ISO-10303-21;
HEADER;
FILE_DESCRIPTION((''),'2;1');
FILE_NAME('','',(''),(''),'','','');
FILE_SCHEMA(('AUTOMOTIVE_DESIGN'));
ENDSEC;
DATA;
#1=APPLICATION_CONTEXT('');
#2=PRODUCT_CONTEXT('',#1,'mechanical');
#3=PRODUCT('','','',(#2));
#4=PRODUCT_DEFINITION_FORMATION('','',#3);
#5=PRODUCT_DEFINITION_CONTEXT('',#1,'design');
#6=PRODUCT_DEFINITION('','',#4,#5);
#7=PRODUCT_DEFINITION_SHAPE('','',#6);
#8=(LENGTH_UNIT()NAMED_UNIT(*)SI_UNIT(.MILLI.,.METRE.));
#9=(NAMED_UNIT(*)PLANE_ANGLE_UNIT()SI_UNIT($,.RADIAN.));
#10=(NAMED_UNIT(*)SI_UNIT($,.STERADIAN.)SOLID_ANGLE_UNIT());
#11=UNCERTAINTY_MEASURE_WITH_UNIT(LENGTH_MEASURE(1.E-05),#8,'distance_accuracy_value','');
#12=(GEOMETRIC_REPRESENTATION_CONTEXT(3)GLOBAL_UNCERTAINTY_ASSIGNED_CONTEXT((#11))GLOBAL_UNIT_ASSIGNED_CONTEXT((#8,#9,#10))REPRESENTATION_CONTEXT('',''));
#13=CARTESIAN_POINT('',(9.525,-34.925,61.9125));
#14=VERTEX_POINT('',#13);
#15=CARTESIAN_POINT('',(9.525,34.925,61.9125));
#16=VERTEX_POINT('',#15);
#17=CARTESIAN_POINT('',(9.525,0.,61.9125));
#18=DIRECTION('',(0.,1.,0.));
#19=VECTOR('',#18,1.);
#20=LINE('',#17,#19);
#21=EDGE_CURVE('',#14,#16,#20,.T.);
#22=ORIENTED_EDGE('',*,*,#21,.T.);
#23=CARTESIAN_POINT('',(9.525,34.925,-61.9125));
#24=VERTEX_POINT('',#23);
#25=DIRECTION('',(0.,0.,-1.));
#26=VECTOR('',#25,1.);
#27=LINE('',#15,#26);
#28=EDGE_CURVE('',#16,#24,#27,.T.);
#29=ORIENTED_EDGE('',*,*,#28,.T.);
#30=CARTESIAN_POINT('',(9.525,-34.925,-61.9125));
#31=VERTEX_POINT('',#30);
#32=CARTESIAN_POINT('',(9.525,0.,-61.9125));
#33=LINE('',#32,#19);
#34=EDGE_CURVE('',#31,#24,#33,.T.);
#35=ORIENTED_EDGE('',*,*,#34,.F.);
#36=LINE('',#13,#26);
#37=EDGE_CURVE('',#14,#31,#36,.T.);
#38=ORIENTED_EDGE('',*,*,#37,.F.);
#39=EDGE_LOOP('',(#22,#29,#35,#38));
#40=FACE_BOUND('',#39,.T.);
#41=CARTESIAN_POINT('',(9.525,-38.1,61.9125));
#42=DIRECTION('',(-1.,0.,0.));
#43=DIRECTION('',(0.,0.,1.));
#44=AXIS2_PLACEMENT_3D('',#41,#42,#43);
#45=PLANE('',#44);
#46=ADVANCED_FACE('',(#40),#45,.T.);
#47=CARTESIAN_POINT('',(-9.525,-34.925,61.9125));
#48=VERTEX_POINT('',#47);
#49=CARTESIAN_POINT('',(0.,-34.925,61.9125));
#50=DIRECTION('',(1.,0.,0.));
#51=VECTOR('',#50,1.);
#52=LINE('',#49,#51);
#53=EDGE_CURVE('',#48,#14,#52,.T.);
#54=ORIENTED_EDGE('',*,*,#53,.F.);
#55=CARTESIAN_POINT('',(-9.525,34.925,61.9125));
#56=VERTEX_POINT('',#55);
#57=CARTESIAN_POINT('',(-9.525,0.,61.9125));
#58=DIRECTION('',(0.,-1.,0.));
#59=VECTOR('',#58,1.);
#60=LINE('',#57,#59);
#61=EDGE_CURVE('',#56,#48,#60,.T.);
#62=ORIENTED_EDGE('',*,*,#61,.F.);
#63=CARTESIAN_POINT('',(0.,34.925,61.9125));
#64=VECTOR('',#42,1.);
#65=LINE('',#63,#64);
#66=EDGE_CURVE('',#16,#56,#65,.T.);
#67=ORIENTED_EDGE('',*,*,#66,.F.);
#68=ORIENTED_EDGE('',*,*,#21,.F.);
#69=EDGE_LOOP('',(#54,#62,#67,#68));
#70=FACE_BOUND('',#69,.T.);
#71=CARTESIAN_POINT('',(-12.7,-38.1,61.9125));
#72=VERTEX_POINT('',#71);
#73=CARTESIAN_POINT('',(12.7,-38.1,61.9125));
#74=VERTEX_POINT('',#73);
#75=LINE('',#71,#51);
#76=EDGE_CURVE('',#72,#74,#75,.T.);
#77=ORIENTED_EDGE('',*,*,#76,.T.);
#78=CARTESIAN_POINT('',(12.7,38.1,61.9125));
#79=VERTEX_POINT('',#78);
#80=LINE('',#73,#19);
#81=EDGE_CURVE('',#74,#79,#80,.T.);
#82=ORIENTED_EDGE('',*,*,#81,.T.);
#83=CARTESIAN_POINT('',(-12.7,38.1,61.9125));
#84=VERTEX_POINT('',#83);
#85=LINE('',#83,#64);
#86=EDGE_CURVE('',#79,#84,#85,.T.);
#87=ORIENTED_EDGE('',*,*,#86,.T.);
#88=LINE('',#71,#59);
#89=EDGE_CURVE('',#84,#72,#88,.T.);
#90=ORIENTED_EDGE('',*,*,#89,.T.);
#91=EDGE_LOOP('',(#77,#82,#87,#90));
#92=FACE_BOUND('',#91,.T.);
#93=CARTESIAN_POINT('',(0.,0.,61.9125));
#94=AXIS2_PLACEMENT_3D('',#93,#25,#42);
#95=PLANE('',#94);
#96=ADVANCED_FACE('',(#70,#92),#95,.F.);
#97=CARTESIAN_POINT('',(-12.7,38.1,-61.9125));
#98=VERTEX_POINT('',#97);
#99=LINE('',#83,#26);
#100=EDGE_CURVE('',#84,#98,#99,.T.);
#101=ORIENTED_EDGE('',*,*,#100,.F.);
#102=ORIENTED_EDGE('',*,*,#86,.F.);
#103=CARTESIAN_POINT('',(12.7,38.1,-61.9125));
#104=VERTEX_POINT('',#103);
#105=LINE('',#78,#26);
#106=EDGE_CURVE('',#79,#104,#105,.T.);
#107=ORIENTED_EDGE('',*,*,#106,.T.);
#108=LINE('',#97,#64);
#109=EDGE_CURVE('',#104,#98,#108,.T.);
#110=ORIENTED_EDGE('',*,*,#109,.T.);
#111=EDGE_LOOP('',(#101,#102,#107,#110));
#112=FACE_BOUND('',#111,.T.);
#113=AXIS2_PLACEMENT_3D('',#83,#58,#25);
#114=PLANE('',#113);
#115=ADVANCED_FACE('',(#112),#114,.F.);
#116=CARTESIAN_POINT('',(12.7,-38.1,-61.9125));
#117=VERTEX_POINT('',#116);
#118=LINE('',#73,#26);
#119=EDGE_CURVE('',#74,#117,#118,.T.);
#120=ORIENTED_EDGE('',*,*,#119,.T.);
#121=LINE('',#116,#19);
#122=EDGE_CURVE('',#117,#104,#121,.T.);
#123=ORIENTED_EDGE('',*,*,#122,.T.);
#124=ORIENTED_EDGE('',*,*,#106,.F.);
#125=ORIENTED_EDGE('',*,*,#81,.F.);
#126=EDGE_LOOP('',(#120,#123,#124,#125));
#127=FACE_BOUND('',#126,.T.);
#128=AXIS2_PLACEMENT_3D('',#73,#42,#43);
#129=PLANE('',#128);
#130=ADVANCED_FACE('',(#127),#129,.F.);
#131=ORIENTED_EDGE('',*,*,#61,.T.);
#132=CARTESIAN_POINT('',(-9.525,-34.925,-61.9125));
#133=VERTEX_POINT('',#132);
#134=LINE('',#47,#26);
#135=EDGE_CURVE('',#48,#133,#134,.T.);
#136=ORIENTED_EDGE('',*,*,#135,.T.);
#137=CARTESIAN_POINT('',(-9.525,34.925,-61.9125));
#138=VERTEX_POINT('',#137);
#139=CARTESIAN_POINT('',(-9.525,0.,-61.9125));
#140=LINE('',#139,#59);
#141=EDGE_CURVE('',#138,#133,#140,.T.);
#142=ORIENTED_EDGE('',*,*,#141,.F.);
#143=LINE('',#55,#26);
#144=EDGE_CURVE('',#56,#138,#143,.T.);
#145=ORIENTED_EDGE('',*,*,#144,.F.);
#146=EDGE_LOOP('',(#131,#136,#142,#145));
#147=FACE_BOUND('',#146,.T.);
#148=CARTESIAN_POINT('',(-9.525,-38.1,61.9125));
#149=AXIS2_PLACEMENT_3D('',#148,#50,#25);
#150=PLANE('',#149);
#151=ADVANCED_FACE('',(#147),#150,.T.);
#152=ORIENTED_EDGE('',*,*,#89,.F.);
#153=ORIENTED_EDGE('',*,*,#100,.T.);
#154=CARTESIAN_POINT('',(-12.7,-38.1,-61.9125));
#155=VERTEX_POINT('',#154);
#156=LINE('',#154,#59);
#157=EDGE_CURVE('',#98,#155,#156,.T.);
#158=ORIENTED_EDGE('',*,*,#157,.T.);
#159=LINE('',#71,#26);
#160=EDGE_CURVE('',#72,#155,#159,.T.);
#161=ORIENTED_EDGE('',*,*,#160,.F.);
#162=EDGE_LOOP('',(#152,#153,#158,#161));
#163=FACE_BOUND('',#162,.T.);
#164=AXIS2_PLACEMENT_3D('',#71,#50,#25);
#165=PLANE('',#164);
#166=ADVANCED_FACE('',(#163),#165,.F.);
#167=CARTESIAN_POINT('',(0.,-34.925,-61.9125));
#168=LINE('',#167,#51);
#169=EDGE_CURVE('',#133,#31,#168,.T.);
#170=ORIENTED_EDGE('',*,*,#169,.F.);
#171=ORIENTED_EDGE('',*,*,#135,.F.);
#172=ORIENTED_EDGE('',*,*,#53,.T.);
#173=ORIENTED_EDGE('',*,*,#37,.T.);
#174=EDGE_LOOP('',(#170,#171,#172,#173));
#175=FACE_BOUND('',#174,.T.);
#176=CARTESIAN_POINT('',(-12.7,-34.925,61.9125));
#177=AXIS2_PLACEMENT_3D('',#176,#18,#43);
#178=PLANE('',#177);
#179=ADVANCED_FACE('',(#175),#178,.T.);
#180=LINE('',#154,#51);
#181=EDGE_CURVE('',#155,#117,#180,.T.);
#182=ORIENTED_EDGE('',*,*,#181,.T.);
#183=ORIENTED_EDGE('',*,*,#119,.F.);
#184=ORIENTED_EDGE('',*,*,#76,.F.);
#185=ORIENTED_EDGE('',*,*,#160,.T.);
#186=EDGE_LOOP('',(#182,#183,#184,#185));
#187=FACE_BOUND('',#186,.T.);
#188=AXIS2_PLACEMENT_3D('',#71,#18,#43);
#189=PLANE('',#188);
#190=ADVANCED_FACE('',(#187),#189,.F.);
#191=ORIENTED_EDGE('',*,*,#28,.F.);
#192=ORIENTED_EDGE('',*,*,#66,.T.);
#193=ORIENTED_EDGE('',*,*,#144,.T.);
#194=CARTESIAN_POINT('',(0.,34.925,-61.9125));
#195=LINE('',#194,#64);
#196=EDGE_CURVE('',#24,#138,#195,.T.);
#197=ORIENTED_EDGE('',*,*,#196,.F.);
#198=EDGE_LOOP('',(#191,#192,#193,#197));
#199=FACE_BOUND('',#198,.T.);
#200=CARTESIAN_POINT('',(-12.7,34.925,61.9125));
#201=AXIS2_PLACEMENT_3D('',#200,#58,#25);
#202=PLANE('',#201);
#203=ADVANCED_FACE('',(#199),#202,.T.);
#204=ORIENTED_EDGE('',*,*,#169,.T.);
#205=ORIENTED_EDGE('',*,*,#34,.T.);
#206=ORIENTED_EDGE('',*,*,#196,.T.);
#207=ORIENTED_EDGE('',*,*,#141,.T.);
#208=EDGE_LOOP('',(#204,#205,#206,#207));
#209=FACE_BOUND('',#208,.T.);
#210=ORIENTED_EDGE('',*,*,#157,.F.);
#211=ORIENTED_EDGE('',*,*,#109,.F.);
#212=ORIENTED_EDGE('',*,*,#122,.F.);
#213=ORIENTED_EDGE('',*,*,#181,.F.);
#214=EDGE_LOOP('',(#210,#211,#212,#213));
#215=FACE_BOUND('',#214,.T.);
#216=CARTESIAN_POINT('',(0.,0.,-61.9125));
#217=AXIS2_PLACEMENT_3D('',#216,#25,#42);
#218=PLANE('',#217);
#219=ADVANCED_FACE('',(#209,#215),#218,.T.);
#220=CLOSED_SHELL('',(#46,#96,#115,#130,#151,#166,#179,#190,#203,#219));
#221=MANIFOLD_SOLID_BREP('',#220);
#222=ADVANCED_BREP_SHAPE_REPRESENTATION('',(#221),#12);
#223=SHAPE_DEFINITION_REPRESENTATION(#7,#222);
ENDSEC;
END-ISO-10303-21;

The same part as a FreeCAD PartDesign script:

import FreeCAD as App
import Part
import Sketcher
Q = App.Units.Quantity


def faces_at(feature, points):
    """Names of the faces that lie closest to the given points."""
    faces = feature.Shape.Faces
    near = lambda p: min(range(len(faces)), key=lambda i: faces[i].distToShape(Part.Vertex(*p))[0])
    return sorted({f"Face{near(p) + 1}" for p in points})

doc = App.newDocument("Part")
body = doc.addObject("PartDesign::Body", "Body")

sketch1 = body.newObject("Sketcher::SketchObject", "Sketch")
sketch1.AttachmentSupport = (doc.getObject("XY_Plane"), [""])
sketch1.MapMode = "FlatFace"
sketch1.addGeometry(Part.LineSegment(App.Vector(-13, 38, 0), App.Vector(-13, -38, 0)), False)
sketch1.addGeometry(Part.LineSegment(App.Vector(-13, -38, 0), App.Vector(13, -38, 0)), False)
sketch1.addGeometry(Part.LineSegment(App.Vector(13, -38, 0), App.Vector(13, 38, 0)), False)
sketch1.addGeometry(Part.LineSegment(App.Vector(13, 38, 0), App.Vector(-13, 38, 0)), False)
sketch1.addConstraint(Sketcher.Constraint("Coincident", 0, 2, 1, 1))
sketch1.addConstraint(Sketcher.Constraint("Coincident", 1, 2, 2, 1))
sketch1.addConstraint(Sketcher.Constraint("Coincident", 2, 2, 3, 1))
sketch1.addConstraint(Sketcher.Constraint("Coincident", 3, 2, 0, 1))
sketch1.addConstraint(Sketcher.Constraint("Vertical", 0))
sketch1.addConstraint(Sketcher.Constraint("Horizontal", 1))
sketch1.addConstraint(Sketcher.Constraint("Vertical", 2))
sketch1.addConstraint(Sketcher.Constraint("Horizontal", 3))
sketch1.addConstraint(Sketcher.Constraint("Symmetric", 0, 2, 2, 2, -1, 1))
sketch1.addConstraint(Sketcher.Constraint("DistanceX", 1, 1, 1, 2, Q("1 in")))
sketch1.addConstraint(Sketcher.Constraint("DistanceY", 0, 2, 0, 1, Q("3 in")))
pad1 = body.newObject("PartDesign::Pad", "Pad")
pad1.Profile = sketch1
pad1.Length = Q("4.875 in")
pad1.Midplane = True
doc.recompute()

thickness = body.newObject("PartDesign::Thickness", "Thickness")
thickness.Base = (pad1, faces_at(pad1, [(0, 0, 61.913), (0, 0, -61.913)]))
thickness.Value = Q("0.125 in")
thickness.Reversed = True
thickness.Join = "Intersection"

doc.recompute()
